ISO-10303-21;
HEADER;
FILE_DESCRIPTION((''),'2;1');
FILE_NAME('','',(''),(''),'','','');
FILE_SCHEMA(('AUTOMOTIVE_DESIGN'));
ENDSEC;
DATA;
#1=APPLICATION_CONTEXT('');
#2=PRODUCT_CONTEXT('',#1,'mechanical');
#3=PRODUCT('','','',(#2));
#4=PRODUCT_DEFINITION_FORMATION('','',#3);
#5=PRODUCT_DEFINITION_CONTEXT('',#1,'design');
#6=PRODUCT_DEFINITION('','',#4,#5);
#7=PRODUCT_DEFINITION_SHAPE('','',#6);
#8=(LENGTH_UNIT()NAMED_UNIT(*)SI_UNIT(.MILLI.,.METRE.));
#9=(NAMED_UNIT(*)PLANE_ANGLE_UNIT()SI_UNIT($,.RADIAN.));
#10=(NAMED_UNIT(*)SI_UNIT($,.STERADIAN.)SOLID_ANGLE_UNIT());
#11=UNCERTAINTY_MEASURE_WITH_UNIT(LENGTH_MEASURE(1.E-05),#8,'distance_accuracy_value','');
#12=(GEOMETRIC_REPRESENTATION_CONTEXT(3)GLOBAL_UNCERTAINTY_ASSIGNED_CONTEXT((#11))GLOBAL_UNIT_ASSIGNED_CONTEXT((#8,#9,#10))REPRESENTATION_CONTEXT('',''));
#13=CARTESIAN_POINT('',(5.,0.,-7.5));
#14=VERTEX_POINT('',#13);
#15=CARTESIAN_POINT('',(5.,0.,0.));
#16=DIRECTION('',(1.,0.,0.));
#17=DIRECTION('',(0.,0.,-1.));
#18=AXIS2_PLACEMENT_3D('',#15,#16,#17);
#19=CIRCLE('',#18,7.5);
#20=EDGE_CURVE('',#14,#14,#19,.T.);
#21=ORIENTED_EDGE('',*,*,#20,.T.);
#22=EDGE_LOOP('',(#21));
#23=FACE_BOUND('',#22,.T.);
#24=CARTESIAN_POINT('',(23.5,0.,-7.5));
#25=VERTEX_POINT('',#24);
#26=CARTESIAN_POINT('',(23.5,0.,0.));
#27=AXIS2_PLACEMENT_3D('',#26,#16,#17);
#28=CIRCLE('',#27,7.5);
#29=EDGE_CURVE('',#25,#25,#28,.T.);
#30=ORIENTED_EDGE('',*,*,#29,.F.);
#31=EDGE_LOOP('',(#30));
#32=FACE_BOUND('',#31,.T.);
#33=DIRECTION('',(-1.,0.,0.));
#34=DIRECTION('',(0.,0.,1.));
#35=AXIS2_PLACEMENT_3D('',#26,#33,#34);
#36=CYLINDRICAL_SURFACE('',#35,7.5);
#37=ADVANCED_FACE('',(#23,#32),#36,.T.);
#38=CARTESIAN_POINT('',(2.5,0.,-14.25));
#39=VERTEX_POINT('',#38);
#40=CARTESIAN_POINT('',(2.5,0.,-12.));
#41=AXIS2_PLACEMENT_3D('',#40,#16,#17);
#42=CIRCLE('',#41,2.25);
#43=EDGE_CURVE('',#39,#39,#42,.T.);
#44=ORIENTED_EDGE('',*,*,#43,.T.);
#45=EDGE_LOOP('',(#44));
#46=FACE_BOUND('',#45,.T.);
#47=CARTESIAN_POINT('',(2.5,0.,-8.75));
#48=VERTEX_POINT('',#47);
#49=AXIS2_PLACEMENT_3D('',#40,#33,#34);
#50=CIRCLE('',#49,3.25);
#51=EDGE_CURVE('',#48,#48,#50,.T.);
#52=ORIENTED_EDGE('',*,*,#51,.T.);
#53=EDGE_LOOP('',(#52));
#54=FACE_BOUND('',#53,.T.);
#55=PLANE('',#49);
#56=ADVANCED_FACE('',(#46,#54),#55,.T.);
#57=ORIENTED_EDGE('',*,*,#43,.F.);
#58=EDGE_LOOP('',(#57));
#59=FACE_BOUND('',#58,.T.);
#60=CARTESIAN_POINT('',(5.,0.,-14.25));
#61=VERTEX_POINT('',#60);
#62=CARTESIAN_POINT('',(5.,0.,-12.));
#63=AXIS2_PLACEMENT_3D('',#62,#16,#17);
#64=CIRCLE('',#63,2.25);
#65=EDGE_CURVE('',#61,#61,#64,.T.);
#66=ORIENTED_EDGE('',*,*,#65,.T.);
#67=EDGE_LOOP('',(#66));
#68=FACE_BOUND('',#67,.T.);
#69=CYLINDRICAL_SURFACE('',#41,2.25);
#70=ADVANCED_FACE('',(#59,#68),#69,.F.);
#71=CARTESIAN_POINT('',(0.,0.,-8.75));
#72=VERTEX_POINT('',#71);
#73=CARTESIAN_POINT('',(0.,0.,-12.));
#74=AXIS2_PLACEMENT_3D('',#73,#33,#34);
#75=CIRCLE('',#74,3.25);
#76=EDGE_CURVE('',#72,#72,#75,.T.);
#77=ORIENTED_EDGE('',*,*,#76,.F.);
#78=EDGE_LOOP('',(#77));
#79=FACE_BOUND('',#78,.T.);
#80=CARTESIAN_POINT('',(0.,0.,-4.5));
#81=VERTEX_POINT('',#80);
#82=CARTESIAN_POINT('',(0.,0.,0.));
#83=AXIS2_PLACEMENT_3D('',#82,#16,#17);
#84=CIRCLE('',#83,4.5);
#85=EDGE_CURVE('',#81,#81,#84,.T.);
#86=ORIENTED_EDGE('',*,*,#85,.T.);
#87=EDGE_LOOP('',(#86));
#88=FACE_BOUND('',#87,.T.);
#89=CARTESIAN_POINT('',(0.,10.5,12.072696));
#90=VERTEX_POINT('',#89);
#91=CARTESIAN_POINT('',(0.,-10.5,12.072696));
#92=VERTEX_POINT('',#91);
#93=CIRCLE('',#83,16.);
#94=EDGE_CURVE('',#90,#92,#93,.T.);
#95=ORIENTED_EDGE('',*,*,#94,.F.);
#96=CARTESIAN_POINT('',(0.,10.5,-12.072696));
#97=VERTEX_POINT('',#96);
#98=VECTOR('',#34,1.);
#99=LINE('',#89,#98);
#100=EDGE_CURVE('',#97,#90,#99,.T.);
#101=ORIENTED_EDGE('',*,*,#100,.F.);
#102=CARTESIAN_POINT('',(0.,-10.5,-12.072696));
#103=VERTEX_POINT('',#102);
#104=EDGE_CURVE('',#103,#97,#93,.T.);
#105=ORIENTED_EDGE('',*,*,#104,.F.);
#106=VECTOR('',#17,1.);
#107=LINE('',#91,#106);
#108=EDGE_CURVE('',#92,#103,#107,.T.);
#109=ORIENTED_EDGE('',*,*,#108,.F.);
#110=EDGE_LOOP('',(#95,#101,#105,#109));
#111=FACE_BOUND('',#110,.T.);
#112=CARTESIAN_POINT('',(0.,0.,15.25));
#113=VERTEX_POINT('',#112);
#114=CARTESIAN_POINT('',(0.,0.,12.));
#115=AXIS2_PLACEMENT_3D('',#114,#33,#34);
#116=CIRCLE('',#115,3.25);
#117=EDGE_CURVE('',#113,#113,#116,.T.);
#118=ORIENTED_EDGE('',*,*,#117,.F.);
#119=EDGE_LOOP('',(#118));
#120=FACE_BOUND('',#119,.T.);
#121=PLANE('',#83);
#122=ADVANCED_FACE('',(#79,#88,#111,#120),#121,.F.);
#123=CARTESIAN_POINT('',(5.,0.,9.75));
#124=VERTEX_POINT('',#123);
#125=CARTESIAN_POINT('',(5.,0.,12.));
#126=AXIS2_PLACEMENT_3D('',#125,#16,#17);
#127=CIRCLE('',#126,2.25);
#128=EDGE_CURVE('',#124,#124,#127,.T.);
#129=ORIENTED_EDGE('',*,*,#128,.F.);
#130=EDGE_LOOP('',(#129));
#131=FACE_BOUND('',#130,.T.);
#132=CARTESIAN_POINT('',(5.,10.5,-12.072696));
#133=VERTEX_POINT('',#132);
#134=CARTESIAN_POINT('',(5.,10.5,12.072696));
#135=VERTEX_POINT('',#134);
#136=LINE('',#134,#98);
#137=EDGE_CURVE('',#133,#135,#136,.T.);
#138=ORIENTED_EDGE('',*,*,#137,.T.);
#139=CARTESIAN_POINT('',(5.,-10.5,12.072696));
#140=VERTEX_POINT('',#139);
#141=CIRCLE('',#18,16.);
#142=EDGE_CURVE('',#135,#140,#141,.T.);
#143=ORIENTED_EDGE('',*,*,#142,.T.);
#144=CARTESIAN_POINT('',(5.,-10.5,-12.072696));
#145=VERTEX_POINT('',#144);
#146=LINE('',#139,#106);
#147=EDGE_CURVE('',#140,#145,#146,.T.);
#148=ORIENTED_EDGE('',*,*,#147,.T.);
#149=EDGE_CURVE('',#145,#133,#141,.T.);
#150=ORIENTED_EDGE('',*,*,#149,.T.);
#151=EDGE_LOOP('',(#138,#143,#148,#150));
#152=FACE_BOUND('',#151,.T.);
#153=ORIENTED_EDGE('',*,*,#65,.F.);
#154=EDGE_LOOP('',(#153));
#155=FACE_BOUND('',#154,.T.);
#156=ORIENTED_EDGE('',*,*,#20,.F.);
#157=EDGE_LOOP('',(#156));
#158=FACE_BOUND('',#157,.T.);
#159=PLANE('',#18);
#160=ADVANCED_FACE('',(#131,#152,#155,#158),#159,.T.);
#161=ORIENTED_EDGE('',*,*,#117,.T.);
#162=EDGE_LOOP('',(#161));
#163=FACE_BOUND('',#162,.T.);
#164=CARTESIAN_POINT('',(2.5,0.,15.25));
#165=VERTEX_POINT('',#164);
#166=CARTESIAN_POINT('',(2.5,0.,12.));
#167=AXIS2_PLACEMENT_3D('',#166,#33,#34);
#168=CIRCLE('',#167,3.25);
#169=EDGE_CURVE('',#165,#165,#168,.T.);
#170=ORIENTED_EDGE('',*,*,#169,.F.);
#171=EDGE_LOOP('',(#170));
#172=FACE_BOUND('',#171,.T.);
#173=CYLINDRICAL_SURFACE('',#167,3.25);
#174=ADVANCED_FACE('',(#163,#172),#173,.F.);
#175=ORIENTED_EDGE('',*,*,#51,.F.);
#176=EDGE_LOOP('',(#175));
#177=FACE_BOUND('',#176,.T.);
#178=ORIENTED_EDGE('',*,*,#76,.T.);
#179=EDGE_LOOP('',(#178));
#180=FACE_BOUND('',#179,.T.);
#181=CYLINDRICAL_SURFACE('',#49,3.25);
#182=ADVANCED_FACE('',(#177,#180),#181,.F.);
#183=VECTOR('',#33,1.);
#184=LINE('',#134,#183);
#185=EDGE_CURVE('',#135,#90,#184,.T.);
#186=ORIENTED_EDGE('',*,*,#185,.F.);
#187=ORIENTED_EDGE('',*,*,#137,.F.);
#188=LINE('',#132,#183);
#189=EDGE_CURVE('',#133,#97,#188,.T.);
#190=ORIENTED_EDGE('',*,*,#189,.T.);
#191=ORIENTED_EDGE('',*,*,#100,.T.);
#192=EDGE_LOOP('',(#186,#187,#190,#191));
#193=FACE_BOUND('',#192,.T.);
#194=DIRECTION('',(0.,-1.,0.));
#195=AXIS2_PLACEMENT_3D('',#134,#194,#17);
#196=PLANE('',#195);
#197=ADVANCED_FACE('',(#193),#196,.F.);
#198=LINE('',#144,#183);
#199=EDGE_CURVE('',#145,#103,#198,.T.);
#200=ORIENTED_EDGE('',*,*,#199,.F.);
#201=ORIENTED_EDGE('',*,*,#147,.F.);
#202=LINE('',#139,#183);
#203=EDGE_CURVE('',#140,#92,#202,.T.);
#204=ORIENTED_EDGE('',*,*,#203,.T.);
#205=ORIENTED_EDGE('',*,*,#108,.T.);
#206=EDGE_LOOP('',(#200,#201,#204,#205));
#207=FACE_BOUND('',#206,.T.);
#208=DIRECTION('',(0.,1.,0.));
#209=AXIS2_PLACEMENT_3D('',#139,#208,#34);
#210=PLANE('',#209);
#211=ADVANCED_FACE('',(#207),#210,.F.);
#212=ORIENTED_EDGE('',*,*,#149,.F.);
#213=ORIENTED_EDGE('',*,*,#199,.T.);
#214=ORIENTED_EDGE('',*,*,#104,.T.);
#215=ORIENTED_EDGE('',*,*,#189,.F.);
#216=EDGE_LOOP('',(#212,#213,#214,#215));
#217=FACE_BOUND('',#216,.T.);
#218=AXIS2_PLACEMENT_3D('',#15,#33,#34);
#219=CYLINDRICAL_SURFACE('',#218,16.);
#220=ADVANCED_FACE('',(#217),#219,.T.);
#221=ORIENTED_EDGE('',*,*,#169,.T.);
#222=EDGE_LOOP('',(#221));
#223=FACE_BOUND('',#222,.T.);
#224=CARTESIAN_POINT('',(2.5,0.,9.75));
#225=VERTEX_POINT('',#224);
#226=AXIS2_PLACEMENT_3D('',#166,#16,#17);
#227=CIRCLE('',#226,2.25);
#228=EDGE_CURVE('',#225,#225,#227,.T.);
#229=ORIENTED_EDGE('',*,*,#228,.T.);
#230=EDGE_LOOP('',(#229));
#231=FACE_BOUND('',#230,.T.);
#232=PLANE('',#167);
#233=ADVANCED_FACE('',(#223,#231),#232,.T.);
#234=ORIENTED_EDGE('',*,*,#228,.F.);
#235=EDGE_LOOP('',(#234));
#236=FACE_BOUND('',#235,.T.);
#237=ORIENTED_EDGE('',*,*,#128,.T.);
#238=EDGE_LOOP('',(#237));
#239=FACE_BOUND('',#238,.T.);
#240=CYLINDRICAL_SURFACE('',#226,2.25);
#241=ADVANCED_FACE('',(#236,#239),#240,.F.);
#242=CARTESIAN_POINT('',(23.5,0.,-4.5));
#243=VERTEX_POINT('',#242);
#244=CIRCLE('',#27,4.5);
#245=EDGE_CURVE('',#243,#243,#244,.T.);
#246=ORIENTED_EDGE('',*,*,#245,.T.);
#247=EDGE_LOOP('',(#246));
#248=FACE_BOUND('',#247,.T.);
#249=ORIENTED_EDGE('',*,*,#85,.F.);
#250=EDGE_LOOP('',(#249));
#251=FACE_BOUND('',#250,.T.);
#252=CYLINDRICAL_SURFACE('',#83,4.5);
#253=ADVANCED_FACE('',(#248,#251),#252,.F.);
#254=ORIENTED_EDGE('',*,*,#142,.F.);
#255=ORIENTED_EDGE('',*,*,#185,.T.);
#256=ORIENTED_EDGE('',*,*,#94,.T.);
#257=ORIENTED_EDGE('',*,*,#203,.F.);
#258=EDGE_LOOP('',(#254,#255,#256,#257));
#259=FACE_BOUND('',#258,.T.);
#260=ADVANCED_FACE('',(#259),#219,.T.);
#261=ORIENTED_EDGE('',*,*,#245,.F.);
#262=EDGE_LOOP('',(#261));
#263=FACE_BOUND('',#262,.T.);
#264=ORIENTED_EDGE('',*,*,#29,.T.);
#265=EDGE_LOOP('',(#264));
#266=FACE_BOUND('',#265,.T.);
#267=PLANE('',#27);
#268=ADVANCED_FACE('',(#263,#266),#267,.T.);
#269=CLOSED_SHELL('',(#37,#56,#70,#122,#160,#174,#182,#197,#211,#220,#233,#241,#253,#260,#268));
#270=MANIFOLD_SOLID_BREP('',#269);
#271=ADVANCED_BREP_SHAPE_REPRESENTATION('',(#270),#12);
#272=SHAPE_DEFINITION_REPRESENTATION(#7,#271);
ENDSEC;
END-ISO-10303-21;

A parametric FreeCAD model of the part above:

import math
import FreeCAD as App
import Part
import Sketcher

V = App.Vector
Q = App.Units.Quantity

doc = App.newDocument("Part")
body = doc.addObject("PartDesign::Body", "Body")

# Sketch on YZ plane
sketch1 = doc.addObject("Sketcher::SketchObject", "Sketch")
body.addObject(sketch1)
sketch1.AttachmentSupport = (doc.YZ_Plane, [""])
sketch1.MapMode = "FlatFace"
sketch1.addGeometry([
    Part.LineSegment(V(10, -12, 0), V(10, 12, 0)),
    Part.ArcOfCircle(Part.Circle(V(0, 0, 0), V(0, 0, 1), 16), math.radians(49), math.radians(131)),
    Part.LineSegment(V(-10, 12, 0), V(-10, -12, 0)),
    Part.ArcOfCircle(Part.Circle(V(0, 0, 0), V(0, 0, 1), 16), math.radians(-131), math.radians(-49)),
], False)
sketch1.addConstraint([
    Sketcher.Constraint("Coincident", 0, 2, 1, 1),
    Sketcher.Constraint("Coincident", 1, 2, 2, 1),
    Sketcher.Constraint("Coincident", 2, 2, 3, 1),
    Sketcher.Constraint("Coincident", 3, 2, 0, 1),
    Sketcher.Constraint("Vertical", 0),
    Sketcher.Constraint("Vertical", 2),
    Sketcher.Constraint("Coincident", 1, 3, -1, 1),
    Sketcher.Constraint("Coincident", 3, 3, -1, 1),
    Sketcher.Constraint("Equal", 1, 3),
    Sketcher.Constraint("Horizontal", 0, 2, 1, 2),
    Sketcher.Constraint("Radius", 1, Q("16 mm")),
    Sketcher.Constraint("DistanceX", 1, 2, 0, 2, Q("21 mm")),
])
pad1 = doc.addObject("PartDesign::Pad", "Pad")
body.addObject(pad1)
pad1.Profile = sketch1
pad1.Length = 5

# Sketch on YZ plane
sketch2 = doc.addObject("Sketcher::SketchObject", "Sketch001")
body.addObject(sketch2)
sketch2.AttachmentSupport = (doc.YZ_Plane, [""])
sketch2.MapMode = "FlatFace"
sketch2.AttachmentOffset = App.Placement(V(0, 0, 5), App.Rotation())
sketch2.addGeometry([
    Part.Circle(V(0, 12, 0), V(0, 0, 1), 2.2),
    Part.Circle(V(0, -12, 0), V(0, 0, 1), 2.2),
], False)
sketch2.addConstraint([
    Sketcher.Constraint("Equal", 0, 1),
    Sketcher.Constraint("Symmetric", 0, 3, 1, 3, -1, 1),
    Sketcher.Constraint("PointOnObject", 0, 3, -2),
    Sketcher.Constraint("Diameter", 0, Q("4.5 mm")),
    Sketcher.Constraint("DistanceY", -1, 1, 0, 3, Q("12 mm")),
])
pocket1 = doc.addObject("PartDesign::Pocket", "Pocket")
body.addObject(pocket1)
pocket1.Profile = sketch2
pocket1.Length = 2.5

# Sketch on YZ plane
sketch3 = doc.addObject("Sketcher::SketchObject", "Sketch002")
body.addObject(sketch3)
sketch3.AttachmentSupport = (doc.YZ_Plane, [""])
sketch3.MapMode = "FlatFace"
sketch3.AttachmentOffset = App.Placement(V(0, 0, 5), App.Rotation())
sketch3.addGeometry(Part.Circle(V(0, 0, 0), V(0, 0, 1), 8), False)
sketch3.addConstraint([
    Sketcher.Constraint("Coincident", 0, 3, -1, 1),
    Sketcher.Constraint("Diameter", 0, Q("15 mm")),
])
pad2 = doc.addObject("PartDesign::Pad", "Pad001")
body.addObject(pad2)
pad2.Profile = sketch3
pad2.Length = 18.5

# Sketch on YZ plane
sketch4 = doc.addObject("Sketcher::SketchObject", "Sketch003")
body.addObject(sketch4)
sketch4.AttachmentSupport = (doc.YZ_Plane, [""])
sketch4.MapMode = "FlatFace"
sketch4.AttachmentOffset = App.Placement(V(0, 0, 23.5), App.Rotation())
sketch4.addGeometry(Part.Circle(V(0, 0, 0), V(0, 0, 1), 4.5), False)
sketch4.addConstraint([
    Sketcher.Constraint("Coincident", 0, 3, -1, 1),
    Sketcher.Constraint("Diameter", 0, Q("9 mm")),
])
pocket2 = doc.addObject("PartDesign::Pocket", "Pocket001")
body.addObject(pocket2)
pocket2.Profile = sketch4
pocket2.Type = "ThroughAll"

# Sketch on YZ plane
sketch5 = doc.addObject("Sketcher::SketchObject", "Sketch004")
body.addObject(sketch5)
sketch5.AttachmentSupport = (doc.YZ_Plane, [""])
sketch5.MapMode = "FlatFace"
sketch5.addGeometry([
    Part.Circle(V(0, -12, 0), V(0, 0, 1), 3.2),
    Part.Circle(V(0, 12, 0), V(0, 0, 1), 3.2),
], False)
sketch5.addConstraint([
    Sketcher.Constraint("Equal", 0, 1),
    Sketcher.Constraint("Symmetric", 0, 3, 1, 3, -1, 1),
    Sketcher.Constraint("PointOnObject", 0, 3, -2),
    Sketcher.Constraint("Diameter", 0, Q("6.5 mm")),
    Sketcher.Constraint("DistanceY", 0, 3, -1, 1, Q("12 mm")),
])
pocket3 = doc.addObject("PartDesign::Pocket", "Pocket002")
body.addObject(pocket3)
pocket3.Profile = sketch5
pocket3.Length = 2.5
pocket3.Reversed = True

doc.recompute()
